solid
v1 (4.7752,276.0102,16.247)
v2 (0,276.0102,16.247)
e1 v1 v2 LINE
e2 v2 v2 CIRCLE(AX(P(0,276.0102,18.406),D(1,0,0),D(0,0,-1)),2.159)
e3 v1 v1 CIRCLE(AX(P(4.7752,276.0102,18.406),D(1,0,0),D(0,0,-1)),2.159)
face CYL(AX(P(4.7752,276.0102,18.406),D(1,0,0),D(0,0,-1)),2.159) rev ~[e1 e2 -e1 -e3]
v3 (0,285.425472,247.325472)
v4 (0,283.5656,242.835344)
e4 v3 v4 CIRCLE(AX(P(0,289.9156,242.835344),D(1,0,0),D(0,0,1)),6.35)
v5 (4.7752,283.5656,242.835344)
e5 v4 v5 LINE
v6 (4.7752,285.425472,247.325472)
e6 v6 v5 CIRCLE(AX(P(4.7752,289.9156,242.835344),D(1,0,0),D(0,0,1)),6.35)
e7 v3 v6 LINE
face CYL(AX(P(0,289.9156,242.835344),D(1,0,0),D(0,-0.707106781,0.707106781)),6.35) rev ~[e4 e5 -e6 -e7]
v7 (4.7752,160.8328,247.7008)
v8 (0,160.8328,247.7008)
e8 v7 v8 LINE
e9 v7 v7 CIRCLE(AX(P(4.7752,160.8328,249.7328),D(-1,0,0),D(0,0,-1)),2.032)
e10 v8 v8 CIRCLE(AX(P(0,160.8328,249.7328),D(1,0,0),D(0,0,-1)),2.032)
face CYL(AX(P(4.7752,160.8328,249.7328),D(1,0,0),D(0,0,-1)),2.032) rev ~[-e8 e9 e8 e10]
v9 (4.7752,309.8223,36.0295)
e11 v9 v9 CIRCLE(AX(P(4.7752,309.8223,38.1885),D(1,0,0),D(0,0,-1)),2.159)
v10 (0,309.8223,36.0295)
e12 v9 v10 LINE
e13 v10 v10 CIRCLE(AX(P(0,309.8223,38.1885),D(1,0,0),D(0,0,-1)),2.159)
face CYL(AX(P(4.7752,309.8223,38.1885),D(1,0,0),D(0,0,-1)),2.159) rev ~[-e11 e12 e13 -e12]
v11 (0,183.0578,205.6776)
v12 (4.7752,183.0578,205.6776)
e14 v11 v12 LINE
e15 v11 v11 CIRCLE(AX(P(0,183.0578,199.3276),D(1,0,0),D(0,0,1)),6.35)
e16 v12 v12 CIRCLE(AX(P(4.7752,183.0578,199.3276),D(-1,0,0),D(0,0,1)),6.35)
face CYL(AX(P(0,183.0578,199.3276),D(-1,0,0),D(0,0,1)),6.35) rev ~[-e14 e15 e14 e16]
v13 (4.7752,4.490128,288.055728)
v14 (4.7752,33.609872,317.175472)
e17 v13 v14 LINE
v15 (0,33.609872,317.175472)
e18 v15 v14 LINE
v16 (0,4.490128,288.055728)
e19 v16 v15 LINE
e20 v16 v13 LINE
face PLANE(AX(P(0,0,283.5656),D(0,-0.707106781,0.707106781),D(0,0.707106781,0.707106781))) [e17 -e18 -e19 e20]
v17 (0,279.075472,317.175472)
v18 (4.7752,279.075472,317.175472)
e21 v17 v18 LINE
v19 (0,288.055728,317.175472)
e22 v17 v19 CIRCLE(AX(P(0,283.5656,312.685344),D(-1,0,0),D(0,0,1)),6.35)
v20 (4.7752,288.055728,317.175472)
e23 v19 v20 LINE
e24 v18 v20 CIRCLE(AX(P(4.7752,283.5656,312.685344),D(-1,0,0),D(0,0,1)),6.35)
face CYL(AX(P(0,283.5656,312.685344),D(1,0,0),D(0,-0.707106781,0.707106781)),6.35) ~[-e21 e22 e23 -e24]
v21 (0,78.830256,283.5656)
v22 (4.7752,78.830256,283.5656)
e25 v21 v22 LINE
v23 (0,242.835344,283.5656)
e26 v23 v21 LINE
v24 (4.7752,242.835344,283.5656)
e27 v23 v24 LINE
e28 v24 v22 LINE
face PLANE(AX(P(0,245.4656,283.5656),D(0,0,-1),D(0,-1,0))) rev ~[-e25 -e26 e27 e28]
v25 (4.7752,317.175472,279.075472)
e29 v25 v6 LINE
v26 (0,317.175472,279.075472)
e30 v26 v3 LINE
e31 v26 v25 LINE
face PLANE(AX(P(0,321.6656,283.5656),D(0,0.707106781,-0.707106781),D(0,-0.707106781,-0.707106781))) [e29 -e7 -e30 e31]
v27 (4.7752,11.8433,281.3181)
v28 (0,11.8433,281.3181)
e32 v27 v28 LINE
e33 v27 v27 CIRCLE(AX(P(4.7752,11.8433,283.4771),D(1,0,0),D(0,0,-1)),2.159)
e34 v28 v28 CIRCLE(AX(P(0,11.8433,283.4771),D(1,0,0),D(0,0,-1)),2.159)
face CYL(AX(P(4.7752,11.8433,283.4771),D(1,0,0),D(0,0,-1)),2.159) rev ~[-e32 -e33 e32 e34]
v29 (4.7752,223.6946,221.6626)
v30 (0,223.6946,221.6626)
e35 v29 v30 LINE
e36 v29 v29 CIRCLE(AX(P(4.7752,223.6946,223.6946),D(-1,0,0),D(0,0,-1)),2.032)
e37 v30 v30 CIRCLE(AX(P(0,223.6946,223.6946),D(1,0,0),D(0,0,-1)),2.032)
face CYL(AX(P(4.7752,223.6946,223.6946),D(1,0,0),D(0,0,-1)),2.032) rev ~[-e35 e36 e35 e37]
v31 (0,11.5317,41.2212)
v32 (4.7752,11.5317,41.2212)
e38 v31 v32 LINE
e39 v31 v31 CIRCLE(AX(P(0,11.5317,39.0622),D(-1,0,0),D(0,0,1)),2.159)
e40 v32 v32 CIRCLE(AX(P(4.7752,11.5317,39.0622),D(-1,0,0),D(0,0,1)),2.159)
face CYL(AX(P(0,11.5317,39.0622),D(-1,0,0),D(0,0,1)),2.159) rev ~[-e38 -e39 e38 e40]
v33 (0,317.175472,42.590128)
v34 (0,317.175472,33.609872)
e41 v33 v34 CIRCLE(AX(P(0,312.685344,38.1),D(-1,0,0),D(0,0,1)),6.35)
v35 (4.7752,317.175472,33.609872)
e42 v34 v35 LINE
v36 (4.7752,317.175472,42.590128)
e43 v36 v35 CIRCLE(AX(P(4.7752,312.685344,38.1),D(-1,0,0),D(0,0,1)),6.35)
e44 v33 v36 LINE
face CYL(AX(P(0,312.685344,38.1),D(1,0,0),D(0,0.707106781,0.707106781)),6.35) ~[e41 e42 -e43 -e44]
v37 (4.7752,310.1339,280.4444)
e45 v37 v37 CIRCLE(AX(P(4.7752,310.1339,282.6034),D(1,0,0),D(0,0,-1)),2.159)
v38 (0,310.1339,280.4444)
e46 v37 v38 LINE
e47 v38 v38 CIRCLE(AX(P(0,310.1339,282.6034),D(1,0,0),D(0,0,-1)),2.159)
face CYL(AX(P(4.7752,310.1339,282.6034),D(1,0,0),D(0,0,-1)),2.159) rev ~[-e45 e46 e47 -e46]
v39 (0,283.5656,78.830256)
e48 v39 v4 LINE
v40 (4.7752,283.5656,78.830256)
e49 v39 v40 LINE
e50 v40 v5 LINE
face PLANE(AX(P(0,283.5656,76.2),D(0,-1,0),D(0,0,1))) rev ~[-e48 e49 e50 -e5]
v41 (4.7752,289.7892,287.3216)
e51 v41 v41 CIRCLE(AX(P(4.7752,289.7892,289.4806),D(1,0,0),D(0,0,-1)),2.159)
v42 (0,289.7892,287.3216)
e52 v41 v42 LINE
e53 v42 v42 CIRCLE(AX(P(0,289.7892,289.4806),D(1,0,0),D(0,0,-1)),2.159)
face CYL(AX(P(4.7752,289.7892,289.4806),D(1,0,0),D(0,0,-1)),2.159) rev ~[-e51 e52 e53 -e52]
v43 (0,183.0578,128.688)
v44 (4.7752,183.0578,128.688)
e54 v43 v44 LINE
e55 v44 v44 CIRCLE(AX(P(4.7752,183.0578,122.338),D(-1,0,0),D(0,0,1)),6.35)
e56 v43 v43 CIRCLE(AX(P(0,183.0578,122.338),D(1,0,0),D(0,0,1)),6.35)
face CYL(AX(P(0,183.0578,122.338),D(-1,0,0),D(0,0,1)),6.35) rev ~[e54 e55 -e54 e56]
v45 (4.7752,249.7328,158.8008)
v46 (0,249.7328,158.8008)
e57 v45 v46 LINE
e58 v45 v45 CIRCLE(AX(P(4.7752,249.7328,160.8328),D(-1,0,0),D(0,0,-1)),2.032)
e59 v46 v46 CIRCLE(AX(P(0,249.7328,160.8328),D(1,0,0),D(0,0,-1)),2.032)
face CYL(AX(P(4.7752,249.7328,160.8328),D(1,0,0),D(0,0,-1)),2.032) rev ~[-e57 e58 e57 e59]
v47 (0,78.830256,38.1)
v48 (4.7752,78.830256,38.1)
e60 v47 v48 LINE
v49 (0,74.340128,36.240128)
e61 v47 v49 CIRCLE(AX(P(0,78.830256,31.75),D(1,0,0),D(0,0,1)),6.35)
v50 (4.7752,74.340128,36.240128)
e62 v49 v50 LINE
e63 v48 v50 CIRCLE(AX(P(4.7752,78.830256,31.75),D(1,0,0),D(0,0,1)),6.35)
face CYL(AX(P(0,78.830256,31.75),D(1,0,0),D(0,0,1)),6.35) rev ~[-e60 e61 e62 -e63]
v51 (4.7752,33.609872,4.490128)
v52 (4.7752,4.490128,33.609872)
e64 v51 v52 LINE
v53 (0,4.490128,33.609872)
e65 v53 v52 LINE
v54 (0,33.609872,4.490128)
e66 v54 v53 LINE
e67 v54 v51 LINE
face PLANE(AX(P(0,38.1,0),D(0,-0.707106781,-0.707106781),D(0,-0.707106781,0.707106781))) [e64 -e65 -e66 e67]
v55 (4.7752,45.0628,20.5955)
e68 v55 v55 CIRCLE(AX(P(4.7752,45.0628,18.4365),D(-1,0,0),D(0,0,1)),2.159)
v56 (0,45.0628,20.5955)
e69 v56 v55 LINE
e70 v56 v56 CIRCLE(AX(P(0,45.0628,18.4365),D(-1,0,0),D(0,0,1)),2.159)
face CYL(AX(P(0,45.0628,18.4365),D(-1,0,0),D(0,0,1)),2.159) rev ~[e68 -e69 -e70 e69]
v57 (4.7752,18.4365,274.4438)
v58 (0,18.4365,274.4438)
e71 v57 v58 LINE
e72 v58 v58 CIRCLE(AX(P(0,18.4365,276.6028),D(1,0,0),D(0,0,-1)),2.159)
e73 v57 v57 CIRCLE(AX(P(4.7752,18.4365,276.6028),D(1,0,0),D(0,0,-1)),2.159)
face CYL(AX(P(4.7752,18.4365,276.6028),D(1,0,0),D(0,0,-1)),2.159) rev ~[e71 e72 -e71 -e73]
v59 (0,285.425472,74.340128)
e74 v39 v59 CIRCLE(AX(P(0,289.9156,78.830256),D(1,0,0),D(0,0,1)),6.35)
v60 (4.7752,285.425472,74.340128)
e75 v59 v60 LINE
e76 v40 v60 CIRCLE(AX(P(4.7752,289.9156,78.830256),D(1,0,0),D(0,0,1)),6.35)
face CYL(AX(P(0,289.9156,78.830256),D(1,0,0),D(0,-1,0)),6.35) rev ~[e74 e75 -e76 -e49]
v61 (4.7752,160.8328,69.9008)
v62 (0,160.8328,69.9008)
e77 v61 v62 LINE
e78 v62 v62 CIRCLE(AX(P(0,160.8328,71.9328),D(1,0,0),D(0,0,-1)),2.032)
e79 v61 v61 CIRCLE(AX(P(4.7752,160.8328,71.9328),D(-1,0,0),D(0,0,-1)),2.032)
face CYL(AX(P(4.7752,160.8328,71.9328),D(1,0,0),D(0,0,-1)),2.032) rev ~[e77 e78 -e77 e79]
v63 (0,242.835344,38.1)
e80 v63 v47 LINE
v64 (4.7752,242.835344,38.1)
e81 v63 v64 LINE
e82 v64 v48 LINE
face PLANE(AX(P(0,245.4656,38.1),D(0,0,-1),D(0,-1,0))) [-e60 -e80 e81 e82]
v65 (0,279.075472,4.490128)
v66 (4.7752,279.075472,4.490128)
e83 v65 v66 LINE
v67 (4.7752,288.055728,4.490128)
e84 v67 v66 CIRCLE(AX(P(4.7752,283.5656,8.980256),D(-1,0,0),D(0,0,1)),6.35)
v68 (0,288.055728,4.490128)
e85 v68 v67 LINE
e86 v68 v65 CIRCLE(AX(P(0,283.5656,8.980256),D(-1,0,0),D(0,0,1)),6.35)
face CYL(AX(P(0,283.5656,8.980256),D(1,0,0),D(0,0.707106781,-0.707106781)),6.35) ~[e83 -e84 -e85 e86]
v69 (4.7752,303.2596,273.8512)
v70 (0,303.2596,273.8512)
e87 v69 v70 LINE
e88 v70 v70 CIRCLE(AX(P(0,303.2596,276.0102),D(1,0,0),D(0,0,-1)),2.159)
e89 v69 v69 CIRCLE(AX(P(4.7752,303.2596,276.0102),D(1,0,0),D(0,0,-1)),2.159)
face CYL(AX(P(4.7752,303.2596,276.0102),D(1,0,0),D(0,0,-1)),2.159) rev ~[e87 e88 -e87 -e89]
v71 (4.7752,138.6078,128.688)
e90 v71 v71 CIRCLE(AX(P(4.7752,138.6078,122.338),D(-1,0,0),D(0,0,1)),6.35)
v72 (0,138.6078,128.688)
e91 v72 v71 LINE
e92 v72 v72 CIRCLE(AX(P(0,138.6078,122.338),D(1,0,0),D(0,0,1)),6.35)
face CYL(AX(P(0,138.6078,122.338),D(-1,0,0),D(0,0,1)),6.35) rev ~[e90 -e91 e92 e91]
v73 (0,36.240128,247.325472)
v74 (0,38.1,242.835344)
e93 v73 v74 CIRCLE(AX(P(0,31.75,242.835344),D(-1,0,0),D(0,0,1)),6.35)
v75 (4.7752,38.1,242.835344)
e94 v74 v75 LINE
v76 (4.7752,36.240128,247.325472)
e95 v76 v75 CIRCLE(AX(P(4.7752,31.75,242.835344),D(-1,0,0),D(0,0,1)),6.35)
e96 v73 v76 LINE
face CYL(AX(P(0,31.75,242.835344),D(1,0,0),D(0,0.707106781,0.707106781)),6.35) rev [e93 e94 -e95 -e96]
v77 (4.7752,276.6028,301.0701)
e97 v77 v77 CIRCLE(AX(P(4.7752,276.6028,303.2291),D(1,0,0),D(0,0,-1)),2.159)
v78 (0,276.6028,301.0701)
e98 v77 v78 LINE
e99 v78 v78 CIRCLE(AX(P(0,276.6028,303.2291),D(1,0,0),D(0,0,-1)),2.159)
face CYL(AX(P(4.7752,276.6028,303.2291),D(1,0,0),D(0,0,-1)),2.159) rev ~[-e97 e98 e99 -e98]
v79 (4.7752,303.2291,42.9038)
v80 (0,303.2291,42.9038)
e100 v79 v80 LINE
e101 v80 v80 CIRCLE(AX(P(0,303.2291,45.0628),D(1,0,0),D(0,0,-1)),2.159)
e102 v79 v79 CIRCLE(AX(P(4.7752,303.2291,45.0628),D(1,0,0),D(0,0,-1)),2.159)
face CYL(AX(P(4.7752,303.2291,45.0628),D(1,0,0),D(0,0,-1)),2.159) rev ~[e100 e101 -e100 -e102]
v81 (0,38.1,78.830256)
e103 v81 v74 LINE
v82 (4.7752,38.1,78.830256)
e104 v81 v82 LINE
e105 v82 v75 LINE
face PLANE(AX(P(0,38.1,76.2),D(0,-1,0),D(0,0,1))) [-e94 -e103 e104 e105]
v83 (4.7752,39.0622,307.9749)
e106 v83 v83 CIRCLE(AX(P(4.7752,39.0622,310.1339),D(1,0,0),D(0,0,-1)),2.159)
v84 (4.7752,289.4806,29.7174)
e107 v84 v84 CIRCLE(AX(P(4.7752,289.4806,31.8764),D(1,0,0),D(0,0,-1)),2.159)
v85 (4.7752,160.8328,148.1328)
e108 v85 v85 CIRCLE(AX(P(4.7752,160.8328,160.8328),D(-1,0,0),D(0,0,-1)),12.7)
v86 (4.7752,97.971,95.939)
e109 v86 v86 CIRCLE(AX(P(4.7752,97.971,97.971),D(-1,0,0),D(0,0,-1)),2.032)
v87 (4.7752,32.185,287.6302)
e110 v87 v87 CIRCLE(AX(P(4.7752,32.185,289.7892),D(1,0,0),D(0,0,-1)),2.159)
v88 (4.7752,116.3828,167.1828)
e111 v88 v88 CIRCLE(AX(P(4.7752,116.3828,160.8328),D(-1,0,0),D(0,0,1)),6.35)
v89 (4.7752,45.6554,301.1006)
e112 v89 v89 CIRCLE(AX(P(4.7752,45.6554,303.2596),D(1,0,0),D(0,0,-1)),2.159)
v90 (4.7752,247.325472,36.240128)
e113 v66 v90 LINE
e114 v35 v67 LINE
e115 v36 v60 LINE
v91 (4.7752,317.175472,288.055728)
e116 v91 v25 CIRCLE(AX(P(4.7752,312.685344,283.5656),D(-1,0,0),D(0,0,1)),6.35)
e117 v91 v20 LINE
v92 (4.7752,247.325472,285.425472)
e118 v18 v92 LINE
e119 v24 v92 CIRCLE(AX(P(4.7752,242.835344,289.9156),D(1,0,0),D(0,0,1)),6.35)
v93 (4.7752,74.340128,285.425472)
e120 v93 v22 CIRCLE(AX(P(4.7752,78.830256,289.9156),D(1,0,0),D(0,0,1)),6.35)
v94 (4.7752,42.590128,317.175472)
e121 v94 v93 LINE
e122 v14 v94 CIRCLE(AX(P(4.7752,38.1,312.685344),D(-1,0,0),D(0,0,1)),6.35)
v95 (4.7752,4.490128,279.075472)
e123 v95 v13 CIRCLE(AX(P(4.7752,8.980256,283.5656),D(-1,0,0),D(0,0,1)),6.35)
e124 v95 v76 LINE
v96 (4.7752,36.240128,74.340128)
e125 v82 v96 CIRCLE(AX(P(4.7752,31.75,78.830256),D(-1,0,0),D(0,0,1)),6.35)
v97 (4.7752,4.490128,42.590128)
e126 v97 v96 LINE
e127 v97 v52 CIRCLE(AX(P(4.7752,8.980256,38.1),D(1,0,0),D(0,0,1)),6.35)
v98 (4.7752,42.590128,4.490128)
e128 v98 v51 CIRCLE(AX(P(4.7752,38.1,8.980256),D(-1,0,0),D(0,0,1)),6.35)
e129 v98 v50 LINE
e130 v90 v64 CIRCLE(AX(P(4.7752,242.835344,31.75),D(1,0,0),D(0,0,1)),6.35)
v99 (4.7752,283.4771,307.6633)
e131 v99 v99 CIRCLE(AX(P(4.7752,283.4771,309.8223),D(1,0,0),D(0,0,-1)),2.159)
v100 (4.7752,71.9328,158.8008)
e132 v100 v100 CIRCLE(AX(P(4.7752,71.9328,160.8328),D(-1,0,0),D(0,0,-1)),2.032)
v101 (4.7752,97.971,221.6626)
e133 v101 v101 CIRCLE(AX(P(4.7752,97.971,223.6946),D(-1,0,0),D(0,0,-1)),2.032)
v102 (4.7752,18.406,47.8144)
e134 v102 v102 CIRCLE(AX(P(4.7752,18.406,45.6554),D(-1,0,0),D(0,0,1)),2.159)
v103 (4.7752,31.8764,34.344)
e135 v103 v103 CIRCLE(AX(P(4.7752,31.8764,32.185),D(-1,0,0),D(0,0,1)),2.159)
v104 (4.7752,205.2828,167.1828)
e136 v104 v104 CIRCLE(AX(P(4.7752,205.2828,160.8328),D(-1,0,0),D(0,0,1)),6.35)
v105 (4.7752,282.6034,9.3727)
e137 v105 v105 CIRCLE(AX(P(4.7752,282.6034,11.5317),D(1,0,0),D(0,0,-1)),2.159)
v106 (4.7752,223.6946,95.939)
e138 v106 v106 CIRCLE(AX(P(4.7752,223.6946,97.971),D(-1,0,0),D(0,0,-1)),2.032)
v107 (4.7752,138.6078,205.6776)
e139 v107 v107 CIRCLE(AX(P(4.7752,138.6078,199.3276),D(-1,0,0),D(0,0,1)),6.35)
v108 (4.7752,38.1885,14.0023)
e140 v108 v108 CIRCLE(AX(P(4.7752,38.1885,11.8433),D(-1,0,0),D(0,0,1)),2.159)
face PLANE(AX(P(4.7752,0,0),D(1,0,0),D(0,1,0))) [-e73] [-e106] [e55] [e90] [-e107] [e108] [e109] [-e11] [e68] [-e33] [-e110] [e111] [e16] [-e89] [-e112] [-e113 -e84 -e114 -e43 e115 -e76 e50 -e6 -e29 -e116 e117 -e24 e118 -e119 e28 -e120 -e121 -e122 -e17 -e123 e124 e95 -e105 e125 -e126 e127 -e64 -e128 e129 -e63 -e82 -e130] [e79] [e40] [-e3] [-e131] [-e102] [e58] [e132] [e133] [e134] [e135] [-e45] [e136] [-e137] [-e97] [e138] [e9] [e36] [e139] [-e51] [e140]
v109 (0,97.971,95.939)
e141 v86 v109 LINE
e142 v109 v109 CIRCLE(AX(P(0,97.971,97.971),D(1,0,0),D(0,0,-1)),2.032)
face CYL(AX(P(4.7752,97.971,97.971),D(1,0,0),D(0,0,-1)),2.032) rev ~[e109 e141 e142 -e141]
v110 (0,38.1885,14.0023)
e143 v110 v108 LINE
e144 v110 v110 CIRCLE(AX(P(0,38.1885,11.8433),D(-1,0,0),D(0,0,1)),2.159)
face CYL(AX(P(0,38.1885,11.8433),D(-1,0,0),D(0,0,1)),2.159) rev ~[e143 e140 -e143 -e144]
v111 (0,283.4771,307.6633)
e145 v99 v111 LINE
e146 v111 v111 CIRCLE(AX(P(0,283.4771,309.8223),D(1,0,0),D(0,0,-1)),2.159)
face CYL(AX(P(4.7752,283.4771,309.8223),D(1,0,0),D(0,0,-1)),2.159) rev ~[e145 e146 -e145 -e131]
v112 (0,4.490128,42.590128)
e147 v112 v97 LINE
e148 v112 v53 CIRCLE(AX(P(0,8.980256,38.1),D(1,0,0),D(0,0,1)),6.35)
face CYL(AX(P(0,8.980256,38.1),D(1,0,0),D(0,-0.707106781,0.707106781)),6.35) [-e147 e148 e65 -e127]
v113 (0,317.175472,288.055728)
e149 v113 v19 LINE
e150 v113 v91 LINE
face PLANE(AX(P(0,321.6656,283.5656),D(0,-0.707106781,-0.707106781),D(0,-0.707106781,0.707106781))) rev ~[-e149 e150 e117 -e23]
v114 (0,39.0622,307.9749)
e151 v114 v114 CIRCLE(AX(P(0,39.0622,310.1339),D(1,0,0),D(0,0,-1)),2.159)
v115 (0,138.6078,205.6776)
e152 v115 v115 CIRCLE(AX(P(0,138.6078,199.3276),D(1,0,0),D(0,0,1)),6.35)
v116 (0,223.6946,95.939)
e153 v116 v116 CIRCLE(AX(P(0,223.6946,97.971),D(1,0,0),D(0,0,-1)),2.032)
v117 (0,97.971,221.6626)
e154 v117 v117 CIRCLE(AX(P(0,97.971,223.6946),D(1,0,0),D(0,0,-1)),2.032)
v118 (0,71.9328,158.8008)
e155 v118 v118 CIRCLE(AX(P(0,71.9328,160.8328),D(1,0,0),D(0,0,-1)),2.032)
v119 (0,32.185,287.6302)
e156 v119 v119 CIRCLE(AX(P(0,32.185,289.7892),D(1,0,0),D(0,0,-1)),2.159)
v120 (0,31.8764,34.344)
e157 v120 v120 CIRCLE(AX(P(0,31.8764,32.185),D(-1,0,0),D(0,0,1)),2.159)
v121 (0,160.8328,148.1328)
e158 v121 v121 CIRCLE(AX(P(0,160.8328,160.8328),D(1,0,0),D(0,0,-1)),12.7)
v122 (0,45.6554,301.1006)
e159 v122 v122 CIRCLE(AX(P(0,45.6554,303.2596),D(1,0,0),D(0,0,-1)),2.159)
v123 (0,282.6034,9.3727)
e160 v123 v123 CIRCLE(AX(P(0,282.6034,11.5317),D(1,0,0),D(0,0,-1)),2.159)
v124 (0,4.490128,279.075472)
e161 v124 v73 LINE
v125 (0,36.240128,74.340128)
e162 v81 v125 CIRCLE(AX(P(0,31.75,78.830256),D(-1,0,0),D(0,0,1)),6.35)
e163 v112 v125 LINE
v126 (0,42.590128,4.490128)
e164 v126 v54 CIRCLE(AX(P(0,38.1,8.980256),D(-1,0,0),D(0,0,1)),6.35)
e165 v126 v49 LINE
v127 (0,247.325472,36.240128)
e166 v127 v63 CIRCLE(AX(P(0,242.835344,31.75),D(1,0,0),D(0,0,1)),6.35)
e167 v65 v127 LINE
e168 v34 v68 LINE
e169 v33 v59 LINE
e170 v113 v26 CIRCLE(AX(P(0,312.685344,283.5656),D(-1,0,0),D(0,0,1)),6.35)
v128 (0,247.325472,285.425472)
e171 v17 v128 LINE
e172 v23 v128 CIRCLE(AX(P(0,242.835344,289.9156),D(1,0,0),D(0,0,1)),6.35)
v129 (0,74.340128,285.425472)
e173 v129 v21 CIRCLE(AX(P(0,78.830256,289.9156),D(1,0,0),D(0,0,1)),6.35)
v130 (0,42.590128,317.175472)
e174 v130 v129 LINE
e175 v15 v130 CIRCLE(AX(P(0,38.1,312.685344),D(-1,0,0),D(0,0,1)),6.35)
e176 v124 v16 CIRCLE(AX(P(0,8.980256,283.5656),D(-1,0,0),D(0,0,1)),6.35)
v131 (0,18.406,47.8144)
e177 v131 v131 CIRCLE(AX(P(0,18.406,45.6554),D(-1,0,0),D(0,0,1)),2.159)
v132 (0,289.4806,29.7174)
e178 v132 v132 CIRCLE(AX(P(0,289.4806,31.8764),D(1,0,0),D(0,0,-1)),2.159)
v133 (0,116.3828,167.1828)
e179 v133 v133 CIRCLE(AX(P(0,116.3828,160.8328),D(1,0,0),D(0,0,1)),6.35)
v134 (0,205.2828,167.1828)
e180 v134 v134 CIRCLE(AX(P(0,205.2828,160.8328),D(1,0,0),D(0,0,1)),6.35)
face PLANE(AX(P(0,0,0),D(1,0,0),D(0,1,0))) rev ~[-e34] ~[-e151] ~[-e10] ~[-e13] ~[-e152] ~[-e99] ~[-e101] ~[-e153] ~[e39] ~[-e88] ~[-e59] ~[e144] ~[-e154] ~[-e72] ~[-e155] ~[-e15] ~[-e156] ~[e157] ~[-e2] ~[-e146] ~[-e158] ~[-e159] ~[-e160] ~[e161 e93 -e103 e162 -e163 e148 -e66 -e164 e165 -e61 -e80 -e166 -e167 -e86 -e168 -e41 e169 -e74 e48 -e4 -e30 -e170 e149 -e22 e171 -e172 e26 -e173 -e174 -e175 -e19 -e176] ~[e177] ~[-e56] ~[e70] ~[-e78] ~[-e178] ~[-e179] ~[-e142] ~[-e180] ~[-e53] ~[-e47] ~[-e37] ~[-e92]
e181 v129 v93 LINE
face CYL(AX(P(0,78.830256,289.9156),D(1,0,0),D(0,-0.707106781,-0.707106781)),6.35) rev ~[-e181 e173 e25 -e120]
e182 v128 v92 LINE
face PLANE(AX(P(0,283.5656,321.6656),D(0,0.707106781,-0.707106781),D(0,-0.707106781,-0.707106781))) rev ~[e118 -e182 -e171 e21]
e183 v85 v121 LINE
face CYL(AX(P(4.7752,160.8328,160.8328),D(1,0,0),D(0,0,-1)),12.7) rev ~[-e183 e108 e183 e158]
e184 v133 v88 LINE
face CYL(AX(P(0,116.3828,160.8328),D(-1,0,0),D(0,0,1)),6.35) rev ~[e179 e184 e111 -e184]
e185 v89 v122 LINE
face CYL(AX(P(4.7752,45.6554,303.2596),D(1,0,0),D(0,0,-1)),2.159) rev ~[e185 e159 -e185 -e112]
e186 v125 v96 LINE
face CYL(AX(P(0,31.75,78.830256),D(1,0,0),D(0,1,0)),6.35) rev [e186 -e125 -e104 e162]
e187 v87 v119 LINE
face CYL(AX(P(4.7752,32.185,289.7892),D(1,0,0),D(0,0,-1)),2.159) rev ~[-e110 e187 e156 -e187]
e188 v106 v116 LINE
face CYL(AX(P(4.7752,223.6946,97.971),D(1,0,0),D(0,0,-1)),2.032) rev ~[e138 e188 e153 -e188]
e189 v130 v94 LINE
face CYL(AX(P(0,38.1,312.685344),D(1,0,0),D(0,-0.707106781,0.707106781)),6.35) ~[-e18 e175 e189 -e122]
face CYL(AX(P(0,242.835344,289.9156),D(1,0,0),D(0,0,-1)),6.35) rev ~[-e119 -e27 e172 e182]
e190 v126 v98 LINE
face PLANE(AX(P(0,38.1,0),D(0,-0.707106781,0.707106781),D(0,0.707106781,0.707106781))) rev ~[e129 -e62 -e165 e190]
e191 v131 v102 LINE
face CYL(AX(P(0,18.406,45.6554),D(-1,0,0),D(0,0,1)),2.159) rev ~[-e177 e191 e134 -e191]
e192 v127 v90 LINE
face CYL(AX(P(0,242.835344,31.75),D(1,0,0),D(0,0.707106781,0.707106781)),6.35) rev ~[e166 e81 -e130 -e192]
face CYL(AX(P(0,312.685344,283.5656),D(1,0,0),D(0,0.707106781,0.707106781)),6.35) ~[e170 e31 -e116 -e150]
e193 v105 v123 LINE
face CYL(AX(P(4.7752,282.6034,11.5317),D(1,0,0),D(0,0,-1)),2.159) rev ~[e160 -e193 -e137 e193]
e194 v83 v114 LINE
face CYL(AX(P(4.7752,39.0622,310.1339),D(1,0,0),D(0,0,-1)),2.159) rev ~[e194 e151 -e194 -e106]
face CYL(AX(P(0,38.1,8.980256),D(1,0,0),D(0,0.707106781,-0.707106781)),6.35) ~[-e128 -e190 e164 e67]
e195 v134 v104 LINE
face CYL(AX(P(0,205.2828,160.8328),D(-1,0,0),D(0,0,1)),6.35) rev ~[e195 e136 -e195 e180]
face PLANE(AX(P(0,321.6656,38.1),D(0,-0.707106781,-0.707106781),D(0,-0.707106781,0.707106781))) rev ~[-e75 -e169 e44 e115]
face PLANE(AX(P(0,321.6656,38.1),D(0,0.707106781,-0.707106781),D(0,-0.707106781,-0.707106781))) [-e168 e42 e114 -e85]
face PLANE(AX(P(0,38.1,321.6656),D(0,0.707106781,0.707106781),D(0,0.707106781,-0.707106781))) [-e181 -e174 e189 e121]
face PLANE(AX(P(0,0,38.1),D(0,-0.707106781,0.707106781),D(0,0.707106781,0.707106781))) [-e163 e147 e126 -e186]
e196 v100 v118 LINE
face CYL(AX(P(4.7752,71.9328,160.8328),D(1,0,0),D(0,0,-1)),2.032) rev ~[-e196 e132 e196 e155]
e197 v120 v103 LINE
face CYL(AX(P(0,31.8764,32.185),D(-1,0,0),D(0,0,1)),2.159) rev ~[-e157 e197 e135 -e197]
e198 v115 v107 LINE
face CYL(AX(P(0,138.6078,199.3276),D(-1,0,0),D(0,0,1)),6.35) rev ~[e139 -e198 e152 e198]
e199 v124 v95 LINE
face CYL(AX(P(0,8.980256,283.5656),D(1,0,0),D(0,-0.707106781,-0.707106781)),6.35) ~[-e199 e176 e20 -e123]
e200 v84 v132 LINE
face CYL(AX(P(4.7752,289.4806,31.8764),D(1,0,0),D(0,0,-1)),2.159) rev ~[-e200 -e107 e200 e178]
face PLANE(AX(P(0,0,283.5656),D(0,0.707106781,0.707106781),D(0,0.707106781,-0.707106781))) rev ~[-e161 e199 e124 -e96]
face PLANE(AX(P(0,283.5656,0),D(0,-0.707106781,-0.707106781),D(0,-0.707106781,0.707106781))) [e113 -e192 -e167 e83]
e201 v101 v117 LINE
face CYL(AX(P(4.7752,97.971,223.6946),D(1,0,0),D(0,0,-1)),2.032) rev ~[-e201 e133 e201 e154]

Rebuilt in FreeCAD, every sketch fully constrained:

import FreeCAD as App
import Part
import Sketcher

V = App.Vector
Q = App.Units.Quantity


def edges_at(feature, points):
    """Names of the edges that pass closest to the given points."""
    edges = feature.Shape.Edges
    near = lambda p: min(range(len(edges)), key=lambda i: edges[i].distToShape(Part.Vertex(*p))[0])
    return sorted({f"Edge{near(p) + 1}" for p in points})


def add_polygon(sketch, points):
    """Adds a closed chain of lines whose ends are joined by coincident constraints."""
    first, n = sketch.GeometryCount, len(points)
    for a, b in zip(points, points[1:] + points[:1]):
        sketch.addGeometry(Part.LineSegment(App.Vector(*a, 0), App.Vector(*b, 0)), False)
    for i in range(n):
        sketch.addConstraint(Sketcher.Constraint("Coincident", first + i, 2, first + (i + 1) % n, 1))

doc = App.newDocument("Part")
body = doc.addObject("PartDesign::Body", "Body")

# Sketch on YZ plane
sketch1 = body.newObject("Sketcher::SketchObject", "Sketch")
sketch1.AttachmentSupport = (doc.getObject("YZ_Plane"), [""])
sketch1.MapMode = "FlatFace"
add_polygon(sketch1, [(0, 321.6656), (0, 0), (321.6656, 0), (321.6656, 321.6656)])  # lines 0-3
sketch1.addConstraint([
    Sketcher.Constraint("Vertical", 0),
    Sketcher.Constraint("Horizontal", 1),
    Sketcher.Constraint("Vertical", 2),
    Sketcher.Constraint("Horizontal", 3),
    Sketcher.Constraint("Coincident", 0, 2, -1, 1),
    Sketcher.Constraint("Equal", 3, 0),
    Sketcher.Constraint("DistanceX", 1, 1, 1, 2, Q("12.664 in")),
])
pad1 = body.newObject("PartDesign::Pad", "Pad")
pad1.Profile = sketch1
pad1.Length = Q("0.188 in")

# Sketch on YZ plane
sketch2 = body.newObject("Sketcher::SketchObject", "Sketch001")
sketch2.AttachmentSupport = (doc.getObject("YZ_Plane"), [""])
sketch2.MapMode = "FlatFace"
add_polygon(sketch2, [(321.6656, 283.5656), (321.6656, 38.1), (283.5656, 76.2), (283.5656, 245.4656)])  # lines 0-3
add_polygon(sketch2, [(245.4656, 38.1), (283.5656, 0), (38.1, 0), (76.2, 38.1)])  # lines 4-7
add_polygon(sketch2, [(38.1, 321.6656), (283.5656, 321.6656), (245.4656, 283.5656), (76.2, 283.5656)])  # lines 8-11
add_polygon(sketch2, [(38.1, 76.2), (0, 38.1), (0, 283.5656), (38.1, 245.4656)])  # lines 12-15
sketch2.addConstraint([
    Sketcher.Constraint("Vertical", 0),
    Sketcher.Constraint("Vertical", 2),
    Sketcher.Constraint("Horizontal", 5),
    Sketcher.Constraint("Horizontal", 7),
    Sketcher.Constraint("Horizontal", 8),
    Sketcher.Constraint("Horizontal", 10),
    Sketcher.Constraint("Vertical", 13),
    Sketcher.Constraint("Vertical", 15),
    Sketcher.Constraint("PointOnObject", 4, 2, -1),
    Sketcher.Constraint("PointOnObject", 12, 2, -2),
    Sketcher.Constraint("Perpendicular", 1, 3),
    Sketcher.Constraint("Perpendicular", 3, 4),
    Sketcher.Constraint("Perpendicular", 4, 6),
    Sketcher.Constraint("Parallel", 6, 9),
    Sketcher.Constraint("Perpendicular", 9, 11),
    Sketcher.Constraint("Perpendicular", 11, 12),
    Sketcher.Constraint("Perpendicular", 12, 14),
    Sketcher.Constraint("Horizontal", 0, 2, 6, 2),
    Sketcher.Constraint("Horizontal", 3, 2, 9, 2),
    Sketcher.Constraint("Horizontal", 7, 2, 12, 2),
    Sketcher.Constraint("Horizontal", 10, 2, 13, 2),
    Sketcher.Constraint("Horizontal", 2, 2, 14, 2),
    Sketcher.Constraint("Horizontal", 1, 2, 15, 2),
    Sketcher.Constraint("Vertical", 2, 2, 4, 2),
    Sketcher.Constraint("Vertical", 4, 2, 8, 2),
    Sketcher.Constraint("Vertical", 7, 2, 9, 2),
    Sketcher.Constraint("Vertical", 6, 2, 10, 2),
    Sketcher.Constraint("Vertical", 11, 2, 14, 2),
    Sketcher.Constraint("Equal", 8, 0),
    Sketcher.Constraint("Equal", 10, 2),
    Sketcher.Constraint("DistanceY", -1, 1, 0, 2, Q("1.5 in")),
    Sketcher.Constraint("DistanceX", 5, 2, 5, 1, Q("9.664 in")),
])
pocket1 = body.newObject("PartDesign::Pocket", "Pocket")
pocket1.Profile = sketch2
pocket1.Length = Q("0.188 in")
pocket1.Reversed = True

# Sketch on YZ plane
sketch3 = body.newObject("Sketcher::SketchObject", "Sketch002")
sketch3.AttachmentSupport = (doc.getObject("YZ_Plane"), [""])
sketch3.MapMode = "FlatFace"
add_polygon(sketch3, [(0, 283.5656), (0, 321.6656), (38.1, 321.6656)])  # lines 0-2
add_polygon(sketch3, [(283.5656, 321.6656), (321.6656, 321.6656), (321.6656, 283.5656)])  # lines 3-5
add_polygon(sketch3, [(321.6656, 38.1), (321.6656, 0), (283.5656, 0)])  # lines 6-8
add_polygon(sketch3, [(38.1, 0), (0, 0), (0, 38.1)])  # lines 9-11
sketch3.addConstraint([
    Sketcher.Constraint("Vertical", 0),
    Sketcher.Constraint("Horizontal", 1),
    Sketcher.Constraint("Horizontal", 3),
    Sketcher.Constraint("Vertical", 4),
    Sketcher.Constraint("Vertical", 6),
    Sketcher.Constraint("Horizontal", 7),
    Sketcher.Constraint("Horizontal", 9),
    Sketcher.Constraint("Vertical", 10),
    Sketcher.Constraint("Coincident", 9, 2, -1, 1),
    Sketcher.Constraint("PointOnObject", 0, 2, -2),
    Sketcher.Constraint("PointOnObject", 6, 2, -1),
    Sketcher.Constraint("Perpendicular", 2, 5),
    Sketcher.Constraint("Perpendicular", 5, 8),
    Sketcher.Constraint("Perpendicular", 8, 11),
    Sketcher.Constraint("Horizontal", 1, 2, 3, 2),
    Sketcher.Constraint("Horizontal", 2, 2, 4, 2),
    Sketcher.Constraint("Horizontal", 8, 2, 10, 2),
    Sketcher.Constraint("Vertical", 4, 2, 6, 2),
    Sketcher.Constraint("Vertical", 5, 2, 7, 2),
    Sketcher.Constraint("Vertical", 1, 2, 11, 2),
    Sketcher.Constraint("DistanceX", 1, 1, 1, 2, Q("1.5 in")),
    Sketcher.Constraint("DistanceY", -1, 1, 0, 2, Q("12.664 in")),
    Sketcher.Constraint("DistanceX", -1, 1, 3, 2, Q("12.664 in")),
])
pocket2 = body.newObject("PartDesign::Pocket", "Pocket001")
pocket2.Profile = sketch3
pocket2.Length = Q("0.188 in")
pocket2.Reversed = True
doc.recompute()

fillet = body.newObject("PartDesign::Fillet", "Fillet")
fillet.Base = (pocket2, edges_at(pocket2, [
    (2.388, 283.566, 0),
    (2.388, 321.666, 38.1),
    (2.388, 38.1, 0),
    (2.388, 76.2, 38.1),
    (2.388, 0, 38.1),
    (2.388, 283.566, 76.2),
    (2.388, 283.566, 245.466),
    (2.388, 321.666, 283.566),
    (2.388, 283.566, 321.666),
    (2.388, 76.2, 283.566),
    (2.388, 245.466, 283.566),
    (2.388, 0, 283.566),
    (2.388, 38.1, 321.666),
    (2.388, 38.1, 76.2),
    (2.388, 38.1, 245.466),
    (2.388, 245.466, 38.1),
]))
fillet.Radius = Q("0.25 in")

# Sketch on YZ plane
sketch4 = body.newObject("Sketcher::SketchObject", "Sketch003")
sketch4.AttachmentSupport = (doc.getObject("YZ_Plane"), [""])
sketch4.MapMode = "FlatFace"
sketch4.addGeometry([
    Part.Circle(V(11.5317, 39.0622, 0), V(0, 0, 1), 2.159),  # 0
    Part.Circle(V(18.406, 45.6554, 0), V(0, 0, 1), 2.159),  # 1
    Part.Circle(V(45.0628, 18.4365, 0), V(0, 0, 1), 2.159),  # 2
    Part.Circle(V(31.8764, 32.185, 0), V(0, 0, 1), 2.159),  # 3
    Part.Circle(V(38.1885, 11.8433, 0), V(0, 0, 1), 2.159),  # 4
], False)
sketch4.addConstraint([
    Sketcher.Constraint("Equal", 0, 1),
    Sketcher.Constraint("Equal", 1, 2),
    Sketcher.Constraint("Equal", 2, 3),
    Sketcher.Constraint("Equal", 3, 4),
    Sketcher.Constraint("Diameter", 0, Q("0.17 in")),
    Sketcher.Constraint("DistanceX", -1, 1, 0, 3, Q("0.454 in")),
    Sketcher.Constraint("DistanceY", 2, 3, 1, 3, Q("1.0716 in")),
    Sketcher.Constraint("DistanceX", 3, 3, 4, 3, Q("0.2485 in")),
    Sketcher.Constraint("DistanceY", 4, 3, 0, 3, Q("1.0716 in")),
    Sketcher.Constraint("DistanceY", -1, 1, 0, 3, Q("39.0622 mm")),
    Sketcher.Constraint("DistanceX", -1, 1, 1, 3, Q("18.406 mm")),
    Sketcher.Constraint("DistanceY", -1, 1, 1, 3, Q("45.6554 mm")),
    Sketcher.Constraint("DistanceX", -1, 1, 2, 3, Q("45.0628 mm")),
    Sketcher.Constraint("DistanceX", -1, 1, 3, 3, Q("31.8764 mm")),
    Sketcher.Constraint("DistanceY", -1, 1, 3, 3, Q("32.185 mm")),
])
pocket3 = body.newObject("PartDesign::Pocket", "Pocket002")
pocket3.Profile = sketch4
pocket3.Length = Q("1 in")
pocket3.Reversed = True

# Sketch on YZ plane
sketch5 = body.newObject("Sketcher::SketchObject", "Sketch004")
sketch5.AttachmentSupport = (doc.getObject("YZ_Plane"), [""])
sketch5.MapMode = "FlatFace"
sketch5.AttachmentOffset = App.Placement(V(0, 0, 0.188 * 25.4), App.Rotation())
sketch5.addGeometry([
    Part.Circle(V(289.4806, 31.8764, 0), V(0, 0, 1), 2.159),  # 0
    Part.Circle(V(282.6034, 11.5317, 0), V(0, 0, 1), 2.159),  # 1
    Part.Circle(V(309.8223, 38.1885, 0), V(0, 0, 1), 2.159),  # 2
    Part.Circle(V(276.0102, 18.406, 0), V(0, 0, 1), 2.159),  # 3
    Part.Circle(V(303.2291, 45.0628, 0), V(0, 0, 1), 2.159),  # 4
], False)
sketch5.addConstraint([
    Sketcher.Constraint("Equal", 0, 1),
    Sketcher.Constraint("Equal", 1, 2),
    Sketcher.Constraint("Equal", 2, 3),
    Sketcher.Constraint("Equal", 3, 4),
    Sketcher.Constraint("Diameter", 0, Q("0.17 in")),
    Sketcher.Constraint("DistanceY", -1, 1, 1, 3, Q("0.454 in")),
    Sketcher.Constraint("DistanceY", 0, 3, 2, 3, Q("0.2485 in")),
    Sketcher.Constraint("DistanceX", 1, 3, 2, 3, Q("1.0716 in")),
    Sketcher.Constraint("DistanceX", 3, 3, 4, 3, Q("1.0716 in")),
    Sketcher.Constraint("DistanceX", -1, 1, 0, 3, Q("289.4806 mm")),
    Sketcher.Constraint("DistanceY", -1, 1, 0, 3, Q("31.8764 mm")),
    Sketcher.Constraint("DistanceX", -1, 1, 1, 3, Q("282.6034 mm")),
    Sketcher.Constraint("DistanceX", -1, 1, 3, 3, Q("276.0102 mm")),
    Sketcher.Constraint("DistanceY", -1, 1, 3, 3, Q("18.406 mm")),
    Sketcher.Constraint("DistanceY", -1, 1, 4, 3, Q("45.0628 mm")),
])
pocket4 = body.newObject("PartDesign::Pocket", "Pocket003")
pocket4.Profile = sketch5
pocket4.Length = Q("1 in")

# Sketch on YZ plane
sketch6 = body.newObject("Sketcher::SketchObject", "Sketch005")
sketch6.AttachmentSupport = (doc.getObject("YZ_Plane"), [""])
sketch6.MapMode = "FlatFace"
sketch6.AttachmentOffset = App.Placement(V(0, 0, 0.188 * 25.4), App.Rotation())
sketch6.addGeometry([
    Part.Circle(V(32.185, 289.7892, 0), V(0, 0, 1), 2.159),  # 0
    Part.Circle(V(39.0622, 310.1339, 0), V(0, 0, 1), 2.159),  # 1
    Part.Circle(V(18.4365, 276.6028, 0), V(0, 0, 1), 2.159),  # 2
    Part.Circle(V(45.6554, 303.2596, 0), V(0, 0, 1), 2.159),  # 3
    Part.Circle(V(11.8433, 283.4771, 0), V(0, 0, 1), 2.159),  # 4
    Part.Circle(V(289.7892, 289.4806, 0), V(0, 0, 1), 2.159),  # 5
    Part.Circle(V(310.1339, 282.6034, 0), V(0, 0, 1), 2.159),  # 6
    Part.Circle(V(283.4771, 309.8223, 0), V(0, 0, 1), 2.159),  # 7
    Part.Circle(V(303.2596, 276.0102, 0), V(0, 0, 1), 2.159),  # 8
    Part.Circle(V(276.6028, 303.2291, 0), V(0, 0, 1), 2.159),  # 9
], False)
sketch6.addConstraint([
    Sketcher.Constraint("Equal", 0, 1),
    Sketcher.Constraint("Equal", 1, 2),
    Sketcher.Constraint("Equal", 2, 3),
    Sketcher.Constraint("Equal", 3, 4),
    Sketcher.Constraint("Equal", 4, 5),
    Sketcher.Constraint("Equal", 5, 6),
    Sketcher.Constraint("Equal", 6, 7),
    Sketcher.Constraint("Equal", 7, 8),
    Sketcher.Constraint("Equal", 8, 9),
    Sketcher.Constraint("Diameter", 0, Q("0.17 in")),
    Sketcher.Constraint("DistanceY", -1, 1, 1, 3, Q("12.21 in")),
    Sketcher.Constraint("DistanceX", -1, 1, 6, 3, Q("12.21 in")),
    Sketcher.Constraint("DistanceY", 2, 3, 5, 3, Q("0.507 in")),
    Sketcher.Constraint("DistanceX", 2, 3, 3, 3, Q("1.0716 in")),
    Sketcher.Constraint("DistanceY", 4, 3, 0, 3, Q("0.2485 in")),
    Sketcher.Constraint("DistanceX", 4, 3, 1, 3, Q("1.0716 in")),
    Sketcher.Constraint("DistanceX", 0, 3, 5, 3, Q("10.1419 in")),
    Sketcher.Constraint("DistanceY", 6, 3, 0, 3, Q("0.2829 in")),
    Sketcher.Constraint("DistanceX", 7, 3, 5, 3, Q("0.2485 in")),
    Sketcher.Constraint("DistanceY", 6, 3, 7, 3, Q("1.0716 in")),
    Sketcher.Constraint("DistanceX", 3, 3, 8, 3, Q("10.1419 in")),
    Sketcher.Constraint("DistanceY", 8, 3, 3, 3, Q("1.0728 in")),
    Sketcher.Constraint("DistanceY", 8, 3, 9, 3, Q("1.0716 in")),
    Sketcher.Constraint("DistanceX", -1, 1, 0, 3, Q("32.185 mm")),
    Sketcher.Constraint("DistanceY", -1, 1, 0, 3, Q("289.7892 mm")),
    Sketcher.Constraint("DistanceX", -1, 1, 1, 3, Q("39.0622 mm")),
    Sketcher.Constraint("DistanceX", -1, 1, 2, 3, Q("18.4365 mm")),
    Sketcher.Constraint("DistanceY", -1, 1, 2, 3, Q("276.6028 mm")),
    Sketcher.Constraint("DistanceY", -1, 1, 3, 3, Q("303.2596 mm")),
    Sketcher.Constraint("DistanceX", -1, 1, 9, 3, Q("276.6028 mm")),
])
pocket5 = body.newObject("PartDesign::Pocket", "Pocket004")
pocket5.Profile = sketch6
pocket5.Length = Q("1 in")

# Sketch on YZ plane
sketch7 = body.newObject("Sketcher::SketchObject", "Sketch006")
sketch7.AttachmentSupport = (doc.getObject("YZ_Plane"), [""])
sketch7.MapMode = "FlatFace"
sketch7.AttachmentOffset = App.Placement(V(0, 0, 0.188 * 25.4), App.Rotation())
sketch7.addGeometry([
    Part.Circle(V(160.8328, 71.9328, 0), V(0, 0, 1), 2.032),  # 0
    Part.Circle(V(223.6946, 97.971, 0), V(0, 0, 1), 2.032),  # 1
    Part.Circle(V(97.971, 97.971, 0), V(0, 0, 1), 2.032),  # 2
    Part.Circle(V(249.7328, 160.8328, 0), V(0, 0, 1), 2.032),  # 3
    Part.Circle(V(71.9328, 160.8328, 0), V(0, 0, 1), 2.032),  # 4
    Part.Circle(V(223.6946, 223.6946, 0), V(0, 0, 1), 2.032),  # 5
    Part.Circle(V(97.971, 223.6946, 0), V(0, 0, 1), 2.032),  # 6
    Part.Circle(V(160.8328, 249.7328, 0), V(0, 0, 1), 2.032),  # 7
], False)
sketch7.addConstraint([
    Sketcher.Constraint("Equal", 0, 1),
    Sketcher.Constraint("Equal", 1, 2),
    Sketcher.Constraint("Equal", 2, 3),
    Sketcher.Constraint("Equal", 3, 4),
    Sketcher.Constraint("Equal", 4, 5),
    Sketcher.Constraint("Equal", 5, 6),
    Sketcher.Constraint("Equal", 6, 7),
    Sketcher.Constraint("Horizontal", 1, 3, 2, 3),
    Sketcher.Constraint("Horizontal", 3, 3, 4, 3),
    Sketcher.Constraint("Horizontal", 5, 3, 6, 3),
    Sketcher.Constraint("Vertical", 1, 3, 5, 3),
    Sketcher.Constraint("Vertical", 2, 3, 6, 3),
    Sketcher.Constraint("Vertical", 0, 3, 7, 3),
    Sketcher.Constraint("Diameter", 0, Q("0.16 in")),
    Sketcher.Constraint("DistanceX", 4, 3, 3, 3, Q("7 in")),
    Sketcher.Constraint("DistanceX", 0, 3, 3, 3, Q("3.5 in")),
    Sketcher.Constraint("DistanceY", 0, 3, 3, 3, Q("3.5 in")),
    Sketcher.Constraint("DistanceY", 4, 3, 7, 3, Q("3.5 in")),
    Sketcher.Constraint("DistanceX", -1, 1, 0, 3, Q("6.332 in")),
    Sketcher.Constraint("DistanceY", -1, 1, 0, 3, Q("2.832 in")),
    Sketcher.Constraint("DistanceX", -1, 1, 1, 3, Q("223.6946 mm")),
    Sketcher.Constraint("DistanceY", -1, 1, 1, 3, Q("97.971 mm")),
    Sketcher.Constraint("DistanceX", -1, 1, 2, 3, Q("97.971 mm")),
    Sketcher.Constraint("DistanceY", -1, 1, 5, 3, Q("223.6946 mm")),
])
pocket6 = body.newObject("PartDesign::Pocket", "Pocket005")
pocket6.Profile = sketch7
pocket6.Length = Q("1 in")

# Sketch on YZ plane
sketch8 = body.newObject("Sketcher::SketchObject", "Sketch007")
sketch8.AttachmentSupport = (doc.getObject("YZ_Plane"), [""])
sketch8.MapMode = "FlatFace"
sketch8.AttachmentOffset = App.Placement(V(0, 0, 0.188 * 25.4), App.Rotation())
sketch8.addGeometry(Part.Circle(V(160.8328, 160.8328, 0), V(0, 0, 1), 12.7), False)
sketch8.addConstraint([
    Sketcher.Constraint("Diameter", 0, Q("1 in")),
    Sketcher.Constraint("DistanceX", -1, 1, 0, 3, Q("6.332 in")),
    Sketcher.Constraint("DistanceY", -1, 1, 0, 3, Q("6.332 in")),
])
pocket7 = body.newObject("PartDesign::Pocket", "Pocket006")
pocket7.Profile = sketch8
pocket7.Length = Q("1 in")

# Sketch on YZ plane
sketch9 = body.newObject("Sketcher::SketchObject", "Sketch008")
sketch9.AttachmentSupport = (doc.getObject("YZ_Plane"), [""])
sketch9.MapMode = "FlatFace"
sketch9.addGeometry([
    Part.Circle(V(116.3828, 160.8328, 0), V(0, 0, 1), 6.35),  # 0
    Part.Circle(V(138.6078, 199.3276, 0), V(0, 0, 1), 6.35),  # 1
    Part.Circle(V(138.6078, 122.338, 0), V(0, 0, 1), 6.35),  # 2
    Part.Circle(V(183.0578, 122.338, 0), V(0, 0, 1), 6.35),  # 3
    Part.Circle(V(183.0578, 199.3276, 0), V(0, 0, 1), 6.35),  # 4
    Part.Circle(V(205.2828, 160.8328, 0), V(0, 0, 1), 6.35),  # 5
], False)
sketch9.addConstraint([
    Sketcher.Constraint("Equal", 0, 1),
    Sketcher.Constraint("Equal", 1, 2),
    Sketcher.Constraint("Equal", 2, 3),
    Sketcher.Constraint("Equal", 3, 4),
    Sketcher.Constraint("Equal", 4, 5),
    Sketcher.Constraint("Horizontal", 2, 3, 3, 3),
    Sketcher.Constraint("Horizontal", 1, 3, 4, 3),
    Sketcher.Constraint("Horizontal", 0, 3, 5, 3),
    Sketcher.Constraint("Vertical", 1, 3, 2, 3),
    Sketcher.Constraint("Vertical", 3, 3, 4, 3),
    Sketcher.Constraint("Diameter", 0, Q("0.5 in")),
    Sketcher.Constraint("DistanceX", 2, 3, 3, 3, Q("1.75 in")),
    Sketcher.Constraint("DistanceX", 0, 3, 5, 3, Q("3.5 in")),
    Sketcher.Constraint("DistanceX", -1, 1, 0, 3, Q("4.582 in")),
    Sketcher.Constraint("DistanceY", -1, 1, 0, 3, Q("6.332 in")),
    Sketcher.Constraint("DistanceX", -1, 1, 1, 3, Q("5.457 in")),
    Sketcher.Constraint("DistanceY", -1, 1, 1, 3, Q("199.3276 mm")),
    Sketcher.Constraint("DistanceY", -1, 1, 2, 3, Q("122.338 mm")),
])
pocket8 = body.newObject("PartDesign::Pocket", "Pocket007")
pocket8.Profile = sketch9
pocket8.Length = Q("1 in")
pocket8.Reversed = True

doc.recompute()
